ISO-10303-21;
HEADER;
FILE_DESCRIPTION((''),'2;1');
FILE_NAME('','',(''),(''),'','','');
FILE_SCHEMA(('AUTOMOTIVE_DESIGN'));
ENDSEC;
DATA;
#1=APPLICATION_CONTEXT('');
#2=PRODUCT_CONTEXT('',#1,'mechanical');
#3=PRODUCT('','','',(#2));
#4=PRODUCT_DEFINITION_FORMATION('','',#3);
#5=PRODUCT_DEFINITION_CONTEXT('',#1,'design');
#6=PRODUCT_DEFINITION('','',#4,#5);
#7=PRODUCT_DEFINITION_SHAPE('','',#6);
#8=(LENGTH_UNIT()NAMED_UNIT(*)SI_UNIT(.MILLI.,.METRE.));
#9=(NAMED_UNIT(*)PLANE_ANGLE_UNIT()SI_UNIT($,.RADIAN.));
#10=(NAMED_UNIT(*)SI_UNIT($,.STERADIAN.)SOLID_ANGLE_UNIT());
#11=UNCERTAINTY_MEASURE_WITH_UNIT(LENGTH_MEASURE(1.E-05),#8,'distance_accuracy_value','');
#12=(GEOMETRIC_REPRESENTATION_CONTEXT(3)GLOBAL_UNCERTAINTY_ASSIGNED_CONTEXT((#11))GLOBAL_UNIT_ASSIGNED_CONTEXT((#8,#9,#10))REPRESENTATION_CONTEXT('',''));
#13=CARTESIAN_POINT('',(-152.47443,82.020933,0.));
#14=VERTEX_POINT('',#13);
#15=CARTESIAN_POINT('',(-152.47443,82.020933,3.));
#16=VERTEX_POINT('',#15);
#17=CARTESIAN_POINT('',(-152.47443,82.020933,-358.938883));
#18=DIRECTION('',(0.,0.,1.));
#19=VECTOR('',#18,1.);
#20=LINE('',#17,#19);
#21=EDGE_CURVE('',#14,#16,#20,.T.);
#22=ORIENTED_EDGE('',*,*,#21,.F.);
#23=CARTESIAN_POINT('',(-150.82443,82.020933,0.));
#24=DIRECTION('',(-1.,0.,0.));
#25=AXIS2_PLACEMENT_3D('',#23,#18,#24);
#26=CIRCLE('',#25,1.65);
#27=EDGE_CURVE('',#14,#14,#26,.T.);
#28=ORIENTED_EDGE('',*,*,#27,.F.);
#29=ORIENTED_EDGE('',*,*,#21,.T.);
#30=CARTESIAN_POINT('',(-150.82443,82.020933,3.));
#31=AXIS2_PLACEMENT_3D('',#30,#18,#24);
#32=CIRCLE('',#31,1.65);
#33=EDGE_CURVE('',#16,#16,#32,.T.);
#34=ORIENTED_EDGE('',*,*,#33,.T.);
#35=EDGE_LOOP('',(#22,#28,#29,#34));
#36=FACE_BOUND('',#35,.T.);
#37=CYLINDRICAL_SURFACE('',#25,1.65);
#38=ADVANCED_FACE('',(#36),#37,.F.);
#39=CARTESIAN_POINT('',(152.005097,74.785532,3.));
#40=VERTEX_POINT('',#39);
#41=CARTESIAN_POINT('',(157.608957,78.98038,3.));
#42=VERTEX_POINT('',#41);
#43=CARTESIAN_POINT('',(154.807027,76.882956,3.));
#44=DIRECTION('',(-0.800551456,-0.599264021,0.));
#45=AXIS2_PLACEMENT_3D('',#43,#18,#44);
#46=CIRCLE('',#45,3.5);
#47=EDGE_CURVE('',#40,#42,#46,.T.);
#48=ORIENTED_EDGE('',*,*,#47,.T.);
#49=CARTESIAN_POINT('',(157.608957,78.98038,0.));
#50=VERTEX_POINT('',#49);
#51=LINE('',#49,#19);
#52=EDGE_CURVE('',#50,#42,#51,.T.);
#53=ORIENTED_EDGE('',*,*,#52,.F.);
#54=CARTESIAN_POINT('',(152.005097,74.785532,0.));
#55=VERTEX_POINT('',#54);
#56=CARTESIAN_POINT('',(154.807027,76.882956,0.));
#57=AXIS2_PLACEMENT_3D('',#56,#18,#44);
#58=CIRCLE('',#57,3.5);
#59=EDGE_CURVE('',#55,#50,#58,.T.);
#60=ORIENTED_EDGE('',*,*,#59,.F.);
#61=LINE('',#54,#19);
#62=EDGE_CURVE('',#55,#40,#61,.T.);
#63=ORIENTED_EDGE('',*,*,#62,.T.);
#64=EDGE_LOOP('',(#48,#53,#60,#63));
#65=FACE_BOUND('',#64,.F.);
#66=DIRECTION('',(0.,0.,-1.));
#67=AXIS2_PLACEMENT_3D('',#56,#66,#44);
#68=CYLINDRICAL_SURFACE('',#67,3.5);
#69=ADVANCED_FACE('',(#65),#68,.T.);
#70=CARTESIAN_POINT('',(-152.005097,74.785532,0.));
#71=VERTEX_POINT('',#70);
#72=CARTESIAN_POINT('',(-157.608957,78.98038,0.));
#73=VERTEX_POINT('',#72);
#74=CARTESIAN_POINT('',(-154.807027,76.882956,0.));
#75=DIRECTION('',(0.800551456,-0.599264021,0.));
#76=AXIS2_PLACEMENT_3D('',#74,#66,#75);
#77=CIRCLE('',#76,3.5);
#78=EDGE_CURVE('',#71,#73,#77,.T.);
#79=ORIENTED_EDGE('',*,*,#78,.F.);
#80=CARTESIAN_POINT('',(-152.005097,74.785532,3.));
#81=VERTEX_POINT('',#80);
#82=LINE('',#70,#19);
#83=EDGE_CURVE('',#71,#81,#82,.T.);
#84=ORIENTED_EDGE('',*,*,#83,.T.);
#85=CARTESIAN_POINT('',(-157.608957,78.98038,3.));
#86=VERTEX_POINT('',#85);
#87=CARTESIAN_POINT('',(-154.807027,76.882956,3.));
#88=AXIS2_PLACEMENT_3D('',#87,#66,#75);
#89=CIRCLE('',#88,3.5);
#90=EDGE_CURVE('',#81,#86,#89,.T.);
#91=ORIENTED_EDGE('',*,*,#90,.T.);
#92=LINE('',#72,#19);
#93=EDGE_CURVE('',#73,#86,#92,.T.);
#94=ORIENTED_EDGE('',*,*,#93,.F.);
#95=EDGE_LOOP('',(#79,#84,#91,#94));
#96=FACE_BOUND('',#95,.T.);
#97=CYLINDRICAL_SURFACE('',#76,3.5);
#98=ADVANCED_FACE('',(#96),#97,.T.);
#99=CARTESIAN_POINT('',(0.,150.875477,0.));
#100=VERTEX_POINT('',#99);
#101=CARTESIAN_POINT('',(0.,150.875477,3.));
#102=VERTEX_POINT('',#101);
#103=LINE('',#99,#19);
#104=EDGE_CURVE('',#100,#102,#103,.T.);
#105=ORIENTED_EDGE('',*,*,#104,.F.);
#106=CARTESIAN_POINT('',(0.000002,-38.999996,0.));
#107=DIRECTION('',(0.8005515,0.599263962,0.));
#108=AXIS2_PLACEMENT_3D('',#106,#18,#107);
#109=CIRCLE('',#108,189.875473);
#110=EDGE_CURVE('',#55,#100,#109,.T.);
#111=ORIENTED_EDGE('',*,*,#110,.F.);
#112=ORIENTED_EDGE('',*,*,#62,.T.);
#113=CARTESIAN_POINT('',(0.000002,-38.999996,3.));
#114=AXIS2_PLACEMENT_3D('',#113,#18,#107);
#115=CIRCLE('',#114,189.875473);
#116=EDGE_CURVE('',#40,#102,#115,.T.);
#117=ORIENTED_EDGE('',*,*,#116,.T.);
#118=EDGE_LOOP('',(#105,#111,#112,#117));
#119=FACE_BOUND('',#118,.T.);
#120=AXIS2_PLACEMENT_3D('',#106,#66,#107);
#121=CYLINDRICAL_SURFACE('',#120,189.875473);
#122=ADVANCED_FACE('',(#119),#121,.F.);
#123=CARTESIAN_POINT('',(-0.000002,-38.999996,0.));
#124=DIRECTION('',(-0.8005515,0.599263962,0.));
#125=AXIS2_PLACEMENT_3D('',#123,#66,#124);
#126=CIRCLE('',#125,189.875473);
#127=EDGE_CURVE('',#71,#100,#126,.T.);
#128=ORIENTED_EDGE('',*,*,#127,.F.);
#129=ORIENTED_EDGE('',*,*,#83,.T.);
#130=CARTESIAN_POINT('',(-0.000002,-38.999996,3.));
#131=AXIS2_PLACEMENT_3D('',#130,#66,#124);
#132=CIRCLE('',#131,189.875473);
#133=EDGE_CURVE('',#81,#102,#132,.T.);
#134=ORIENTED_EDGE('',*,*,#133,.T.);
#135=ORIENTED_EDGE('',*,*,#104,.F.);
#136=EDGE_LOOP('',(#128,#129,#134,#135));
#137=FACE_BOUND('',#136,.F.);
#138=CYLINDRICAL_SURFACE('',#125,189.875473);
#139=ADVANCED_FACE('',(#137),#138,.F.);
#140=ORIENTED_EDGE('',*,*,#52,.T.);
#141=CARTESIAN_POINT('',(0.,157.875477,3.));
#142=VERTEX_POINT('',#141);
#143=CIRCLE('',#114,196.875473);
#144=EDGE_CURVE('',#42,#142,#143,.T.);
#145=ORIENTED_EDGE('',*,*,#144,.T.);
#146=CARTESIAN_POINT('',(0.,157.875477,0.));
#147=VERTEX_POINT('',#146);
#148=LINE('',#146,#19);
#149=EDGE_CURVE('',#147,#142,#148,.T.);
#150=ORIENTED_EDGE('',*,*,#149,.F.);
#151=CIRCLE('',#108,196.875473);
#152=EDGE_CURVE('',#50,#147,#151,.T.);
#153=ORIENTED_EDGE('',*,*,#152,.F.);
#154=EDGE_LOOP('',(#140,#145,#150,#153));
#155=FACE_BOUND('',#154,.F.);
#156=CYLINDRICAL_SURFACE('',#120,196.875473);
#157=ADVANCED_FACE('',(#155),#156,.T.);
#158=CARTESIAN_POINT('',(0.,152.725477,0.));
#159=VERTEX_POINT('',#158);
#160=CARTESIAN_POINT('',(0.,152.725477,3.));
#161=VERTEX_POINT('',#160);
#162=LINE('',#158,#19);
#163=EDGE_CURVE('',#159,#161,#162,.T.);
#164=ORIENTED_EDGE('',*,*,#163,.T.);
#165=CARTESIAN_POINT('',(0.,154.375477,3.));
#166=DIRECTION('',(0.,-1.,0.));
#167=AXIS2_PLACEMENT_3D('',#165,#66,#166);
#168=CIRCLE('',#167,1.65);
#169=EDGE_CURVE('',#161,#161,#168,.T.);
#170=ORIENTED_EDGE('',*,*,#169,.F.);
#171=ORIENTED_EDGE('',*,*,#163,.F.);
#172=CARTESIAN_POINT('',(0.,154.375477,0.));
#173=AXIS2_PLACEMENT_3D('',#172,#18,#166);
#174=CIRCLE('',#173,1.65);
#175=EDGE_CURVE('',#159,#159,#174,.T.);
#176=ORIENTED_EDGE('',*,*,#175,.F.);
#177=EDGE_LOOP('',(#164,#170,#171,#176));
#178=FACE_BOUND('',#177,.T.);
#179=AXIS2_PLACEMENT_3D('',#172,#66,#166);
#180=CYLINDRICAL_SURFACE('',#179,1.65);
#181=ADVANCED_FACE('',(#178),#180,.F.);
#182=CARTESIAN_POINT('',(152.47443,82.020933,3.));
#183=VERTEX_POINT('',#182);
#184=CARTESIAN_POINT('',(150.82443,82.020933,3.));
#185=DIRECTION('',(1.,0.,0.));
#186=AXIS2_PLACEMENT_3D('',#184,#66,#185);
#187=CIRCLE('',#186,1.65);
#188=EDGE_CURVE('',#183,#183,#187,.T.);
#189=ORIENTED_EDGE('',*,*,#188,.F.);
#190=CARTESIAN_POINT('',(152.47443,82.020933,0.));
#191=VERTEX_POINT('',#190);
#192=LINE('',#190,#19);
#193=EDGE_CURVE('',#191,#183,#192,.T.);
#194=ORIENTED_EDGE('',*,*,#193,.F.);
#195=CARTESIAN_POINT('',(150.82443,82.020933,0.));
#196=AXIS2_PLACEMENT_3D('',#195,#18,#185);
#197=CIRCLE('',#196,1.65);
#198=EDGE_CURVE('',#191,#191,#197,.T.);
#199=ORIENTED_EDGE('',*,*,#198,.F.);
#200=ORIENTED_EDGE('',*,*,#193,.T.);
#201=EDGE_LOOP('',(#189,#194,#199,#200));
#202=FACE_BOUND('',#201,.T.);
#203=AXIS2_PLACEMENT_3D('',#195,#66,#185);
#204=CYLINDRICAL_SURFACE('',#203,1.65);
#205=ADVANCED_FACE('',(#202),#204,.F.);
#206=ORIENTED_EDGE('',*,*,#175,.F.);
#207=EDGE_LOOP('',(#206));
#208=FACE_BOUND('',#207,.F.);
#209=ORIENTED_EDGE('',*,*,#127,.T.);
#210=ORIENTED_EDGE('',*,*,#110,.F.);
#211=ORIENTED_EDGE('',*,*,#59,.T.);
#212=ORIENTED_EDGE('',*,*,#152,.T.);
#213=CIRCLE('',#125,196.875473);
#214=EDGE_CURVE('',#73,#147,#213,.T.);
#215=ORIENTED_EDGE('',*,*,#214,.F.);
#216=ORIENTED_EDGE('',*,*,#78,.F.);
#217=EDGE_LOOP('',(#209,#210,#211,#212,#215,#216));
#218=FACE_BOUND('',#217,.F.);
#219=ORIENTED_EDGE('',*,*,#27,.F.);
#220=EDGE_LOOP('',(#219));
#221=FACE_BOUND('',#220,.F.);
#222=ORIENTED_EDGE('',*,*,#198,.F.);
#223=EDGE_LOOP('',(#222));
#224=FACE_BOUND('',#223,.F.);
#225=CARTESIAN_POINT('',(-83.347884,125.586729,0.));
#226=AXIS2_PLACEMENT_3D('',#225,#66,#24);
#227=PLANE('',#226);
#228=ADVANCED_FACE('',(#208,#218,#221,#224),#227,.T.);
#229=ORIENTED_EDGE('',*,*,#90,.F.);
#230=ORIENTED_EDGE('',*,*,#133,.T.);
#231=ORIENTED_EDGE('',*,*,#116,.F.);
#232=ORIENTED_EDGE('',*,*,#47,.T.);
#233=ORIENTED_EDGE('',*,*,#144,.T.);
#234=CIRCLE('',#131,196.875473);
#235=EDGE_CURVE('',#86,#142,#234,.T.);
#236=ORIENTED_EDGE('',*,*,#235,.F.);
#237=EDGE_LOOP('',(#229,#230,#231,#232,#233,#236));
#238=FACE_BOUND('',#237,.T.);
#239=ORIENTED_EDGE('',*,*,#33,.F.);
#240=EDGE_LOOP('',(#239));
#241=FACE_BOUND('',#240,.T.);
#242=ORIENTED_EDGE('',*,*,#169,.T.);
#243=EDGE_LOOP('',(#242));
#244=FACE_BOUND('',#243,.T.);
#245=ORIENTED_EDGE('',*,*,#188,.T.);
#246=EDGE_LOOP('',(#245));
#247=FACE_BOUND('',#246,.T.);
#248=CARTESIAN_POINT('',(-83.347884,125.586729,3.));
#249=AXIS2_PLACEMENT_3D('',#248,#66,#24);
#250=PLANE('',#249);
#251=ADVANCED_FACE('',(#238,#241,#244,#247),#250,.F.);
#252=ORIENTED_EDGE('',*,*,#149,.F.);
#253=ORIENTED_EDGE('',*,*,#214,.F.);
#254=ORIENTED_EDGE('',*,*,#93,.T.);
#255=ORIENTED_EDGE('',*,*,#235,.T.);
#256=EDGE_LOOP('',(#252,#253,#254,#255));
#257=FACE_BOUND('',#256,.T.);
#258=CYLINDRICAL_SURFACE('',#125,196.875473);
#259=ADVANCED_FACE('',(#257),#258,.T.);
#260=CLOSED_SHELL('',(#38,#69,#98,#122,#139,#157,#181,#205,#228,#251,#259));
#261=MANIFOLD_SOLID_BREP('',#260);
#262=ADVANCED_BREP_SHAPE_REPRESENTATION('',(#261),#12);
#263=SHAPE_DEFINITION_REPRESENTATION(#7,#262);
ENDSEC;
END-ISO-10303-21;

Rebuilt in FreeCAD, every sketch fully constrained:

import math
import FreeCAD as App
import Part
import Sketcher

V = App.Vector

doc = App.newDocument("Part")
body = doc.addObject("PartDesign::Body", "Body")

# Sketch on XY plane
sketch1 = body.newObject("Sketcher::SketchObject", "Sketch")
sketch1.AttachmentSupport = (doc.getObject("XY_Plane"), [""])
sketch1.MapMode = "FlatFace"
sketch1.addGeometry(Part.ArcOfCircle(Part.Circle(V(0, 0, 0), V(0, 0, 1), 189.9), math.radians(37), math.radians(90)), False)
sketch1.addGeometry(Part.ArcOfCircle(Part.Circle(V(154.8, 115.9, 0), V(0, 0, 1), 3.5), math.radians(-143), math.radians(37)), False)
sketch1.addGeometry(Part.ArcOfCircle(Part.Circle(V(0, 0, 0), V(0, 0, 1), 196.9), math.radians(37), math.radians(90)), False)
sketch1.addGeometry(Part.LineSegment(V(0, 196.9, 0), V(0, 189.9, 0)), False)
sketch1.addConstraint(Sketcher.Constraint("Tangent", 0, 1, 1, 1))
sketch1.addConstraint(Sketcher.Constraint("Tangent", 1, 2, 2, 1))
sketch1.addConstraint(Sketcher.Constraint("Coincident", 2, 2, 3, 1))
sketch1.addConstraint(Sketcher.Constraint("Coincident", 3, 2, 0, 2))
sketch1.addConstraint(Sketcher.Constraint("Vertical", 3))
sketch1.addConstraint(Sketcher.Constraint("Coincident", 0, 3, -1, 1))
sketch1.addConstraint(Sketcher.Constraint("Coincident", 2, 3, -1, 1))
sketch1.addConstraint(Sketcher.Constraint("PointOnObject", 2, 2, -2))
sketch1.addConstraint(Sketcher.Constraint("Radius", 1, 3.5))
sketch1.addConstraint(Sketcher.Constraint("Radius", 0, 189.875473))
sketch1.addConstraint(Sketcher.Constraint("DistanceY", -1, 1, 1, 2, 117.98038))
pad1 = body.newObject("PartDesign::Pad", "Pad")
pad1.Profile = sketch1
pad1.Length = 3

# Sketch on XY plane
sketch2 = body.newObject("Sketcher::SketchObject", "Sketch001")
sketch2.AttachmentSupport = (doc.getObject("XY_Plane"), [""])
sketch2.MapMode = "FlatFace"
sketch2.addGeometry(Part.Circle(V(150.8, 121, 0), V(0, 0, 1), 1.6), False)
sketch2.addGeometry(Part.ArcOfCircle(Part.Circle(V(0, 193.4, 0), V(0, 0, 1), 1.6), math.radians(-90), math.radians(90)), False)
sketch2.addGeometry(Part.LineSegment(V(0, 195, 0), V(0, 191.7, 0)), False)
sketch2.addConstraint(Sketcher.Constraint("Coincident", 1, 1, 2, 2))
sketch2.addConstraint(Sketcher.Constraint("Coincident", 2, 1, 1, 2))
sketch2.addConstraint(Sketcher.Constraint("Vertical", 2))
sketch2.addConstraint(Sketcher.Constraint("Equal", 0, 1))
sketch2.addConstraint(Sketcher.Constraint("PointOnObject", 1, 3, -2))
sketch2.addConstraint(Sketcher.Constraint("PointOnObject", 1, 1, -2))
sketch2.addConstraint(Sketcher.Constraint("Diameter", 0, 3.3))
sketch2.addConstraint(Sketcher.Constraint("DistanceX", -1, 1, 0, 3, 150.82443))
sketch2.addConstraint(Sketcher.Constraint("DistanceY", -1, 1, 0, 3, 121.020933))
sketch2.addConstraint(Sketcher.Constraint("DistanceY", -1, 1, 1, 3, 193.375477))
pocket1 = body.newObject("PartDesign::Pocket", "Pocket")
pocket1.Profile = sketch2
pocket1.Type = "ThroughAll"
pocket1.Midplane = True
doc.recompute()

mirrored = body.newObject("PartDesign::Mirrored", "Mirrored")
mirrored.Originals = [pad1, pocket1]
mirrored.MirrorPlane = (doc.getObject("YZ_Plane"), [""])
body.Tip = mirrored
body2 = doc.addObject("PartDesign::Body", "Body001")
doc.recompute()

body.Placement = App.Placement(V(0, 0, 0), App.Rotation(V(0, 0, 1), 60))
boolean = body2.newObject("PartDesign::Boolean", "Boolean")
boolean.Type = "Fuse"
boolean.addObjects([body])
body3 = doc.addObject("PartDesign::Body", "Body002")
doc.recompute()

body2.Placement = App.Placement(V(0, -39, 0), App.Rotation(V(0, 0, -1), 60))
boolean2 = body3.newObject("PartDesign::Boolean", "Boolean001")
boolean2.Type = "Fuse"
boolean2.addObjects([body2])

doc.recompute()
